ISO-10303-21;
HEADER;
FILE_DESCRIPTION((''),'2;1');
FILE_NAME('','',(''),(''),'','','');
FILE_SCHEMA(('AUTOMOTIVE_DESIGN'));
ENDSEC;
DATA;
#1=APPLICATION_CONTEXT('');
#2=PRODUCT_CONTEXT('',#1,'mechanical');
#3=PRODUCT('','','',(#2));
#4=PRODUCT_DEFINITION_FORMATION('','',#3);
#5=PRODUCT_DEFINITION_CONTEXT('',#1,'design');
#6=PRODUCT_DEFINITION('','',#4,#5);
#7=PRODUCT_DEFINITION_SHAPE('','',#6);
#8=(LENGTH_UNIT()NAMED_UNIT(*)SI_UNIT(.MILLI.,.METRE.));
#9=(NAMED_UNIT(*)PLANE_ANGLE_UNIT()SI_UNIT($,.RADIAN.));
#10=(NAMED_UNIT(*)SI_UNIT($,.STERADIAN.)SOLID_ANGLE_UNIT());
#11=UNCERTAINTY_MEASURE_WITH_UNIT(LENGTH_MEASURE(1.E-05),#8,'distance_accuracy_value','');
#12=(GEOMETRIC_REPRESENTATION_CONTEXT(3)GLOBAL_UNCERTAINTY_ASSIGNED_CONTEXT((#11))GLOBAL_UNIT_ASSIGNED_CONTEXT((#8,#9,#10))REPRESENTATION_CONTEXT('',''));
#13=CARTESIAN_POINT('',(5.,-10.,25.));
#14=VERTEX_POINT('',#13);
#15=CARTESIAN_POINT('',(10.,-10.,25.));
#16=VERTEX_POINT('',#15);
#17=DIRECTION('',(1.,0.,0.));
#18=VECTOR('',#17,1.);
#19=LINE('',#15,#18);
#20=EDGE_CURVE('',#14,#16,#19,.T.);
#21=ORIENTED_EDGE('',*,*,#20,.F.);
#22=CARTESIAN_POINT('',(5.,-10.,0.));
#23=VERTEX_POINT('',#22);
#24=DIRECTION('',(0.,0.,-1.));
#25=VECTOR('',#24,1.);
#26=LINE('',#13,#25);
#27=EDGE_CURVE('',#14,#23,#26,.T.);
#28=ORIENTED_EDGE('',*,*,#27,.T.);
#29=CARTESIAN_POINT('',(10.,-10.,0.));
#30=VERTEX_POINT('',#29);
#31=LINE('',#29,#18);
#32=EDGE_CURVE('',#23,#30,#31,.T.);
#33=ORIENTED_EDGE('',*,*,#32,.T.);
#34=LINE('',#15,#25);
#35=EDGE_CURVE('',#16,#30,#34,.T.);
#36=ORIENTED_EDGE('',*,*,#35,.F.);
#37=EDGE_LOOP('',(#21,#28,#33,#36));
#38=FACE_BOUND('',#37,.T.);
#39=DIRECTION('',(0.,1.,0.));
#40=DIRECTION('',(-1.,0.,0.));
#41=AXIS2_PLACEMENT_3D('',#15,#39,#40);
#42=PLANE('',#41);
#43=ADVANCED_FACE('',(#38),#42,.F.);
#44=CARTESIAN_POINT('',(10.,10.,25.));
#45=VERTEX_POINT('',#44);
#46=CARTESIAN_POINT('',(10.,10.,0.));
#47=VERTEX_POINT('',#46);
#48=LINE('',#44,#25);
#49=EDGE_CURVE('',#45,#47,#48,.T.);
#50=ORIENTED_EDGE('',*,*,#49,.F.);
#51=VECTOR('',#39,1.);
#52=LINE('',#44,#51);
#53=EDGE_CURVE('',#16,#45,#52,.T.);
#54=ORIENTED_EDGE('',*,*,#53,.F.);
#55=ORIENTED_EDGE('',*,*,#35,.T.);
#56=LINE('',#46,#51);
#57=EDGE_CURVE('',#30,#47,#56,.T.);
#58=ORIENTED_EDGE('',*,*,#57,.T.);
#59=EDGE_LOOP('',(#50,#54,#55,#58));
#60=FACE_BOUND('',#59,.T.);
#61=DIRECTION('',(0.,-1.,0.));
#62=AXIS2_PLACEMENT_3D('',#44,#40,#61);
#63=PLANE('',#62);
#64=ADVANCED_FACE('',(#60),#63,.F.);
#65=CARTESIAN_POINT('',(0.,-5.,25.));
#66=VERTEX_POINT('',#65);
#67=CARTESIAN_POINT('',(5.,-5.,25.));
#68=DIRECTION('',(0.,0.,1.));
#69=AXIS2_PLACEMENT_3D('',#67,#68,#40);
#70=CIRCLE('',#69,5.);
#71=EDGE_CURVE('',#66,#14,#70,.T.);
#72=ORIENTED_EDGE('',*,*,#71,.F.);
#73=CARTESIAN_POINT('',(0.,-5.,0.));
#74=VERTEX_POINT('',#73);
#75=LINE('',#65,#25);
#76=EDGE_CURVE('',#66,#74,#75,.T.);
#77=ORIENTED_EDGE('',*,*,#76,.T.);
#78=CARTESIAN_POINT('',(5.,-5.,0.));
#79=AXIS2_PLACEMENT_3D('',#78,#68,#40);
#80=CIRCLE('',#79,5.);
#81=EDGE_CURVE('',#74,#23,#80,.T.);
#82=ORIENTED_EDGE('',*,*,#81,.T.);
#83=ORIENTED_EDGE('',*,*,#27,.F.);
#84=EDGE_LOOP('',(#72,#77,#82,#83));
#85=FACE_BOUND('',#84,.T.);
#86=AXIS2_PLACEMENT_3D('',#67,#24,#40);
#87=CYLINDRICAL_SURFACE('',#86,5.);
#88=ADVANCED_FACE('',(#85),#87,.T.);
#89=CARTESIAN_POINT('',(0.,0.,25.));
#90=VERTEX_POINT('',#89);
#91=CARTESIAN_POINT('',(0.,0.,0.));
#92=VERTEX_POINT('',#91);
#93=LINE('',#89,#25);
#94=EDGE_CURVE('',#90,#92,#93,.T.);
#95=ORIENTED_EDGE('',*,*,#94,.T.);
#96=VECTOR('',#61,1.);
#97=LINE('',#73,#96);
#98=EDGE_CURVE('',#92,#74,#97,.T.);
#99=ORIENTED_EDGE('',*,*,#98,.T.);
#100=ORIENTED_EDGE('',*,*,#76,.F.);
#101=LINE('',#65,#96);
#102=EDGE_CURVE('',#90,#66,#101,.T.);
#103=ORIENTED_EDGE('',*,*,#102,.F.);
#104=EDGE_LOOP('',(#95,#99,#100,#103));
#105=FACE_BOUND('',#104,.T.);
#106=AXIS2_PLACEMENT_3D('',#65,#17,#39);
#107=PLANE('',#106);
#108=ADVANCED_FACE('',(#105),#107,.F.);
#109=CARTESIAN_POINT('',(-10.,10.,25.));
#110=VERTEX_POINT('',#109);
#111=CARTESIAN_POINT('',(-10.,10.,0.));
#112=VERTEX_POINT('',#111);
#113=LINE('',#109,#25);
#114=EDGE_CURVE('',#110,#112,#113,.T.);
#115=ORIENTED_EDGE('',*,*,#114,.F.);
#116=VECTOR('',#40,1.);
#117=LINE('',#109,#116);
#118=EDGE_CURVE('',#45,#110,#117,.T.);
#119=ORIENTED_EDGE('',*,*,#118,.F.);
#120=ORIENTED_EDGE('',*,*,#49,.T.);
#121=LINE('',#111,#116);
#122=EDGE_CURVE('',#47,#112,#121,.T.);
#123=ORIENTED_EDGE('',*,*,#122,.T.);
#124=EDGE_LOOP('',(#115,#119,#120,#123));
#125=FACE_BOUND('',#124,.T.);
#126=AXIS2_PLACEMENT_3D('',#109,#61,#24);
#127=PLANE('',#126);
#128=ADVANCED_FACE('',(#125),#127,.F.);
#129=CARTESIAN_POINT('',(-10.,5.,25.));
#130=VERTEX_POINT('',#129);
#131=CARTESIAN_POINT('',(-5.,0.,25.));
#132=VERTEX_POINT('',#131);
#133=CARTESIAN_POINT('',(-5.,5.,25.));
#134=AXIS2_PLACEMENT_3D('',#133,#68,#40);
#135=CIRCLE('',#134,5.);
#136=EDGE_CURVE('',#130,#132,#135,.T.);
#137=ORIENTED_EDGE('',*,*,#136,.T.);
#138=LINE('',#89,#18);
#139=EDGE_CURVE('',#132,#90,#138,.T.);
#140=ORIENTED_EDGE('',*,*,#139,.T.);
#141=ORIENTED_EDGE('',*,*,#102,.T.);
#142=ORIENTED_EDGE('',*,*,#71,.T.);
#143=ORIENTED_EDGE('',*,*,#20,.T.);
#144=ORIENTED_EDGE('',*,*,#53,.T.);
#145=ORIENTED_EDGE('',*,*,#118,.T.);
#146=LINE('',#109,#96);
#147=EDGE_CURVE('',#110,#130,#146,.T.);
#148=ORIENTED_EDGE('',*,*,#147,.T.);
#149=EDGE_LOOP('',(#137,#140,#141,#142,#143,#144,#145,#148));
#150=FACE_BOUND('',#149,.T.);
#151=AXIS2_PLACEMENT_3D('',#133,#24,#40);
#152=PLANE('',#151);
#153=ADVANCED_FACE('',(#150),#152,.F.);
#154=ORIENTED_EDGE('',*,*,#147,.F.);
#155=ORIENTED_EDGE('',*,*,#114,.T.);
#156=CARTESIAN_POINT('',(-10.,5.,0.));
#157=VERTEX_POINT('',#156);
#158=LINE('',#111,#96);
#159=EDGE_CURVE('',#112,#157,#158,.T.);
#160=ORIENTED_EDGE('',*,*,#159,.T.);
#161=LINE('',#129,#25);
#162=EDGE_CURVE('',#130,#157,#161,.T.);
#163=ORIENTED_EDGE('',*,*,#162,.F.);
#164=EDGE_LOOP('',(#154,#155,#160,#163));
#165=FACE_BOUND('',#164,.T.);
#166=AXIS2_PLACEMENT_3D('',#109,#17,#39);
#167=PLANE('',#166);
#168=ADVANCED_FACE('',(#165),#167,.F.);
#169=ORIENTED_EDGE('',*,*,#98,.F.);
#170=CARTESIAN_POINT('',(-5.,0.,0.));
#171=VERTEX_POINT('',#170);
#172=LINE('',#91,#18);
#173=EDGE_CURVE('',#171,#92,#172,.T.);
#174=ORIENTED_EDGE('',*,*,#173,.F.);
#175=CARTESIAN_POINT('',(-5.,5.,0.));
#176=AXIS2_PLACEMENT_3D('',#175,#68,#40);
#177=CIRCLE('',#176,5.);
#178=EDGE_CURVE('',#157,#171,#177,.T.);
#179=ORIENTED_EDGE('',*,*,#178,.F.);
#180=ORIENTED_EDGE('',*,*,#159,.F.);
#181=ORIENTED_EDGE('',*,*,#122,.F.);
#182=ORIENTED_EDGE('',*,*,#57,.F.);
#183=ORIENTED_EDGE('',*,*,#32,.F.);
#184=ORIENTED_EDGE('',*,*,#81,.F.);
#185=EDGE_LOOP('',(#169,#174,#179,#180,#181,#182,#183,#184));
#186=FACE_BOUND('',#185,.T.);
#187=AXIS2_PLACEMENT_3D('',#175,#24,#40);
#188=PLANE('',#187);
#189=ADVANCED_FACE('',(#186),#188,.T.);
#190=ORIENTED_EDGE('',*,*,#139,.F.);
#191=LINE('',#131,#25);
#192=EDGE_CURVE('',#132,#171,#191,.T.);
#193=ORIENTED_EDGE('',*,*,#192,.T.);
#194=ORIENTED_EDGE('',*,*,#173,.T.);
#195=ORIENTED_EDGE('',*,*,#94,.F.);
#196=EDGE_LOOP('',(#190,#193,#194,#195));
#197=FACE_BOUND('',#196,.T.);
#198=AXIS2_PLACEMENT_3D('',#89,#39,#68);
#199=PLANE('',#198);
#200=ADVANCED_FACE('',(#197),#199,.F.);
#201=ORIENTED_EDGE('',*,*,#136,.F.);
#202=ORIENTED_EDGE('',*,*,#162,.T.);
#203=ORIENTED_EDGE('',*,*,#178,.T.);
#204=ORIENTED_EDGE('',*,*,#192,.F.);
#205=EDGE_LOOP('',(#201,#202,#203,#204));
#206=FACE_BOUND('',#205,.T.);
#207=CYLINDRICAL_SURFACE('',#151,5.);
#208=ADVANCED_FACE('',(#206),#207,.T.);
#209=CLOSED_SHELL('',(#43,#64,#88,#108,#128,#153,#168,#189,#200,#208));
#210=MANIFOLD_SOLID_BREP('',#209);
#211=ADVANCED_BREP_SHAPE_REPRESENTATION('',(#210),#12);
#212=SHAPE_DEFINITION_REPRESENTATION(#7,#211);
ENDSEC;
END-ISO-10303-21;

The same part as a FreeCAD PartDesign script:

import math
import FreeCAD as App
import Part
import Sketcher

V = App.Vector

doc = App.newDocument("Part")
params = doc.addObject("Spreadsheet::Sheet", "Params")
for row, (alias, value) in enumerate([
    ("sketch1_radius", "5 mm"),
    ("pad1_length", "25 mm"),
], start=1):
    params.set(f"A{row}", alias)
    params.set(f"B{row}", "=" + value)
    params.setAlias(f"B{row}", alias)

body = doc.addObject("PartDesign::Body", "Body")

# Sketch on XY plane
sketch1 = doc.addObject("Sketcher::SketchObject", "Sketch")
body.addObject(sketch1)
sketch1.AttachmentSupport = (doc.XY_Plane, [""])
sketch1.MapMode = "FlatFace"
sketch1.addGeometry([
    Part.LineSegment(V(10, 10, 0), V(-10, 10, 0)),  # 0
    Part.LineSegment(V(-10, 10, 0), V(-10, 5, 0)),  # 1
    Part.ArcOfCircle(Part.Circle(V(-5, 5, 0), V(0, 0, 1), 5), math.radians(180), math.radians(270)),  # 2
    Part.LineSegment(V(-5, 0, 0), V(0, 0, 0)),  # 3
    Part.LineSegment(V(0, 0, 0), V(0, -5, 0)),  # 4
    Part.ArcOfCircle(Part.Circle(V(5, -5, 0), V(0, 0, 1), 5), math.radians(180), math.radians(270)),  # 5
    Part.LineSegment(V(5, -10, 0), V(10, -10, 0)),  # 6
    Part.LineSegment(V(10, -10, 0), V(10, 10, 0)),  # 7
], False)
sketch1.addConstraint([
    Sketcher.Constraint("Coincident", 0, 2, 1, 1),
    Sketcher.Constraint("Tangent", 1, 2, 2, 1),
    Sketcher.Constraint("Tangent", 2, 2, 3, 1),
    Sketcher.Constraint("Coincident", 3, 2, 4, 1),
    Sketcher.Constraint("Tangent", 4, 2, 5, 1),
    Sketcher.Constraint("Tangent", 5, 2, 6, 1),
    Sketcher.Constraint("Coincident", 6, 2, 7, 1),
    Sketcher.Constraint("Coincident", 7, 2, 0, 1),
    Sketcher.Constraint("Horizontal", 0),
    Sketcher.Constraint("Vertical", 1),
    Sketcher.Constraint("Horizontal", 3),
    Sketcher.Constraint("Vertical", 4),
    Sketcher.Constraint("Horizontal", 6),
    Sketcher.Constraint("Vertical", 7),
    Sketcher.Constraint("Coincident", 3, 2, -1, 1),
    Sketcher.Constraint("Equal", 2, 5),
    Sketcher.Constraint("Symmetric", 2, 3, 5, 3, -1, 1),
    Sketcher.Constraint("Symmetric", 0, 2, 6, 2, -1, 1),
    Sketcher.Constraint("Radius", 2, 5.0),
])
sketch1.setExpression("Constraints[18]", "Params.sketch1_radius")
pad1 = doc.addObject("PartDesign::Pad", "Pad")
body.addObject(pad1)
pad1.Profile = sketch1
pad1.setExpression("Length", "Params.pad1_length")

doc.recompute()
